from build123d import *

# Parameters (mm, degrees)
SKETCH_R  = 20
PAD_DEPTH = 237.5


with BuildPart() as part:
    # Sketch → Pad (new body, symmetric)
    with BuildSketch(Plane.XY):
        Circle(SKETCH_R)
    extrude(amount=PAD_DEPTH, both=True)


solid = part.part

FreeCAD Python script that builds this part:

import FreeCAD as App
import Part
import Sketcher
from FreeCAD import Vector
Q = App.Units.Quantity

doc = App.newDocument("Part")
body = doc.addObject("PartDesign::Body", "Body")

# Sketch on XY plane
sketch1 = doc.addObject("Sketcher::SketchObject", "Sketch")
body.addObject(sketch1)
sketch1.AttachmentSupport = (doc.XY_Plane, [""])
sketch1.MapMode = "FlatFace"
sketch1.addGeometry(Part.Circle(Vector(0, 0, 0), Vector(0, 0, 1), 20), False)
sketch1.addConstraint(Sketcher.Constraint("Coincident", 0, 3, -1, 1))
sketch1.addConstraint(Sketcher.Constraint("Diameter", 0, Q("40 mm")))
pad1 = doc.addObject("PartDesign::Pad", "Pad")
body.addObject(pad1)
pad1.Profile = sketch1
pad1.Length = 475
pad1.Midplane = True

doc.recompute()
